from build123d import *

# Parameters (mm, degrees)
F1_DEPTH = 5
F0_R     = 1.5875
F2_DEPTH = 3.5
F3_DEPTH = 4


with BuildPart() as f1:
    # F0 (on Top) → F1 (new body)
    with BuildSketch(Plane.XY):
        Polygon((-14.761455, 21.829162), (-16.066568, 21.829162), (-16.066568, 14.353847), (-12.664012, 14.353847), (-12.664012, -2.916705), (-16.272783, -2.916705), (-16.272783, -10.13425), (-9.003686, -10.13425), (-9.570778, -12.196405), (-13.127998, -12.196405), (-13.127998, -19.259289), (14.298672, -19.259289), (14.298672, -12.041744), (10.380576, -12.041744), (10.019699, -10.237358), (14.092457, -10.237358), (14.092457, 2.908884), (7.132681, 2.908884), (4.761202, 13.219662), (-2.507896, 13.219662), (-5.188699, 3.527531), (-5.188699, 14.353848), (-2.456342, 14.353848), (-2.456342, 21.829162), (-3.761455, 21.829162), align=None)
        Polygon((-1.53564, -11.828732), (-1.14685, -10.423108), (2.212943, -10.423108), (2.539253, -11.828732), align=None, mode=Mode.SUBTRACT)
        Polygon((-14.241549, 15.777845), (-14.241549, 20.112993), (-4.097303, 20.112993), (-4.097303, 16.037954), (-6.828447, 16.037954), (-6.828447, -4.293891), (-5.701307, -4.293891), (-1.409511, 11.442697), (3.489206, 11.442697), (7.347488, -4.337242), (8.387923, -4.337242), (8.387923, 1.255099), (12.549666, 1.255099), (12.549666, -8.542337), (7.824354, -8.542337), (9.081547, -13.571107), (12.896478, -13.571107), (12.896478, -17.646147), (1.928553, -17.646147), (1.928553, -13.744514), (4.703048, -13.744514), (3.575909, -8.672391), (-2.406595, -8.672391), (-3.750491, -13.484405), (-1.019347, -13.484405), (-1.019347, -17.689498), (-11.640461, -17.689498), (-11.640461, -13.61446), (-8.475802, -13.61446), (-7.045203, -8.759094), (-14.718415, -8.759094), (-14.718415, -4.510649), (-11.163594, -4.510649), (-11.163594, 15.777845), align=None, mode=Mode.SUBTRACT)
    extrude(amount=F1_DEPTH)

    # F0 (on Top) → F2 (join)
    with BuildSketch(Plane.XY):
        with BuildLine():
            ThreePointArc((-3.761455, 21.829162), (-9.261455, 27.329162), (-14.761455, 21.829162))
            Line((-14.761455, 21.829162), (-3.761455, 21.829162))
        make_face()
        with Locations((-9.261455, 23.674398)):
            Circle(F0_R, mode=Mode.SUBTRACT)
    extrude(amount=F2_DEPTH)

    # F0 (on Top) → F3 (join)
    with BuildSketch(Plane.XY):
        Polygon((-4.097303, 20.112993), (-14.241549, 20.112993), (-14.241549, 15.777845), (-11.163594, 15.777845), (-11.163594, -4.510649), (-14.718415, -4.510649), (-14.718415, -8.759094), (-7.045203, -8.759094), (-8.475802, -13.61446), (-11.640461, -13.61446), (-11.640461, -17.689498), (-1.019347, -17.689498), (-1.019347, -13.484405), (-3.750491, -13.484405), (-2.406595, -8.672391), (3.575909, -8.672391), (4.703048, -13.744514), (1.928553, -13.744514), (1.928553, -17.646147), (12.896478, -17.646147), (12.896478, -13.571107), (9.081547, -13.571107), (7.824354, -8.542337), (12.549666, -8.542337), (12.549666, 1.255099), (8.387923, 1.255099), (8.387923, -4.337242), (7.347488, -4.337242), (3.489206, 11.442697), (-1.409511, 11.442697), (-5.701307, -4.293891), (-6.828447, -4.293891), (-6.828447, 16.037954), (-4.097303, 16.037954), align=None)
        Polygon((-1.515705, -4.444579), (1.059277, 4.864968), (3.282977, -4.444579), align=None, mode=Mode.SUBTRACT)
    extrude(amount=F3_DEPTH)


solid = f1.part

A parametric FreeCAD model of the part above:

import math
import FreeCAD as App
import Part
import Sketcher
from FreeCAD import Vector


def add_polygon(sketch, points):
    """Adds a closed chain of lines whose ends are joined by coincident constraints."""
    first, n = sketch.GeometryCount, len(points)
    for a, b in zip(points, points[1:] + points[:1]):
        sketch.addGeometry(Part.LineSegment(App.Vector(*a, 0), App.Vector(*b, 0)), False)
    for i in range(n):
        sketch.addConstraint(Sketcher.Constraint("Coincident", first + i, 2, first + (i + 1) % n, 1))

doc = App.newDocument("Part")
params = doc.addObject("Spreadsheet::Sheet", "Params")
for row, (alias, value) in enumerate([
    ("pad1_length", "5 mm"),
    ("sketch2_radius", "5.5 mm"),
    ("pad2_length", "3.5 mm"),
    ("pad3_length", "4 mm"),
], start=1):
    params.set(f"A{row}", alias)
    params.set(f"B{row}", "=" + value)
    params.setAlias(f"B{row}", alias)

body = doc.addObject("PartDesign::Body", "Body")

sketch1 = doc.addObject("Sketcher::SketchObject", "Sketch")
body.addObject(sketch1)
sketch1.AttachmentSupport = (doc.XY_Plane, [""])
sketch1.MapMode = "FlatFace"
add_polygon(sketch1, [(-16.066568, 21.829162), (-16.066568, 14.353847), (-12.664012, 14.353847), (-12.664012, -2.916705), (-16.272783, -2.916705), (-16.272783, -10.13425), (-9.003686, -10.13425), (-9.570778, -12.196405), (-13.127998, -12.196405), (-13.127998, -19.259289), (14.298672, -19.259289), (14.298672, -12.041744), (10.380576, -12.041744), (10.019699, -10.237358), (14.092457, -10.237358), (14.092457, 2.908884), (7.132681, 2.908884), (4.761202, 13.219662), (-2.507896, 13.219662), (-5.188699, 3.527531), (-5.188699, 14.353848), (-2.456342, 14.353848), (-2.456342, 21.829162)])
add_polygon(sketch1, [(2.539253, -11.828732), (-1.53564, -11.828732), (-1.14685, -10.423108), (2.212943, -10.423108)])
add_polygon(sketch1, [(-11.163594, 15.777845), (-14.241549, 15.777845), (-14.241549, 20.112993), (-4.097303, 20.112993), (-4.097303, 16.037954), (-6.828447, 16.037954), (-6.828447, -4.293891), (-5.701307, -4.293891), (-1.409511, 11.442697), (3.489206, 11.442697), (7.347488, -4.337242), (8.387923, -4.337242), (8.387923, 1.255099), (12.549666, 1.255099), (12.549666, -8.542337), (7.824354, -8.542337), (9.081547, -13.571107), (12.896478, -13.571107), (12.896478, -17.646147), (1.928553, -17.646147), (1.928553, -13.744514), (4.703048, -13.744514), (3.575909, -8.672391), (-2.406595, -8.672391), (-3.750491, -13.484405), (-1.019347, -13.484405), (-1.019347, -17.689498), (-11.640461, -17.689498), (-11.640461, -13.61446), (-8.475802, -13.61446), (-7.045203, -8.759094), (-14.718415, -8.759094), (-14.718415, -4.510649), (-11.163594, -4.510649)])
sketch1.addConstraint(Sketcher.Constraint("Vertical", 0))
sketch1.addConstraint(Sketcher.Constraint("Horizontal", 1))
sketch1.addConstraint(Sketcher.Constraint("Vertical", 2))
sketch1.addConstraint(Sketcher.Constraint("Horizontal", 3))
sketch1.addConstraint(Sketcher.Constraint("Vertical", 4))
sketch1.addConstraint(Sketcher.Constraint("Horizontal", 5))
sketch1.addConstraint(Sketcher.Constraint("Horizontal", 7))
sketch1.addConstraint(Sketcher.Constraint("Vertical", 8))
sketch1.addConstraint(Sketcher.Constraint("Horizontal", 9))
sketch1.addConstraint(Sketcher.Constraint("Vertical", 10))
sketch1.addConstraint(Sketcher.Constraint("Horizontal", 11))
sketch1.addConstraint(Sketcher.Constraint("Horizontal", 13))
sketch1.addConstraint(Sketcher.Constraint("Vertical", 14))
sketch1.addConstraint(Sketcher.Constraint("Horizontal", 15))
sketch1.addConstraint(Sketcher.Constraint("Horizontal", 17))
sketch1.addConstraint(Sketcher.Constraint("Vertical", 19))
sketch1.addConstraint(Sketcher.Constraint("Horizontal", 20))
sketch1.addConstraint(Sketcher.Constraint("Vertical", 21))
sketch1.addConstraint(Sketcher.Constraint("Horizontal", 22))
sketch1.addConstraint(Sketcher.Constraint("Horizontal", 23))
sketch1.addConstraint(Sketcher.Constraint("Horizontal", 25))
sketch1.addConstraint(Sketcher.Constraint("Horizontal", 27))
sketch1.addConstraint(Sketcher.Constraint("Vertical", 28))
sketch1.addConstraint(Sketcher.Constraint("Horizontal", 29))
sketch1.addConstraint(Sketcher.Constraint("Vertical", 30))
sketch1.addConstraint(Sketcher.Constraint("Horizontal", 31))
sketch1.addConstraint(Sketcher.Constraint("Vertical", 32))
sketch1.addConstraint(Sketcher.Constraint("Horizontal", 33))
sketch1.addConstraint(Sketcher.Constraint("Horizontal", 35))
sketch1.addConstraint(Sketcher.Constraint("Horizontal", 37))
sketch1.addConstraint(Sketcher.Constraint("Vertical", 38))
sketch1.addConstraint(Sketcher.Constraint("Horizontal", 39))
sketch1.addConstraint(Sketcher.Constraint("Vertical", 40))
sketch1.addConstraint(Sketcher.Constraint("Horizontal", 41))
sketch1.addConstraint(Sketcher.Constraint("Horizontal", 43))
sketch1.addConstraint(Sketcher.Constraint("Vertical", 44))
sketch1.addConstraint(Sketcher.Constraint("Horizontal", 45))
sketch1.addConstraint(Sketcher.Constraint("Vertical", 46))
sketch1.addConstraint(Sketcher.Constraint("Horizontal", 47))
sketch1.addConstraint(Sketcher.Constraint("Horizontal", 49))
sketch1.addConstraint(Sketcher.Constraint("Horizontal", 51))
sketch1.addConstraint(Sketcher.Constraint("Vertical", 52))
sketch1.addConstraint(Sketcher.Constraint("Horizontal", 53))
sketch1.addConstraint(Sketcher.Constraint("Vertical", 54))
sketch1.addConstraint(Sketcher.Constraint("Horizontal", 55))
sketch1.addConstraint(Sketcher.Constraint("Horizontal", 57))
sketch1.addConstraint(Sketcher.Constraint("Vertical", 58))
sketch1.addConstraint(Sketcher.Constraint("Horizontal", 59))
sketch1.addConstraint(Sketcher.Constraint("Vertical", 60))
sketch1.addConstraint(Sketcher.Constraint("DistanceX", 3, 2, 3, 1, 3.608771))
sketch1.addConstraint(Sketcher.Constraint("DistanceX", 7, 2, 7, 1, 3.55722))
sketch1.addConstraint(Sketcher.Constraint("DistanceX", 9, 1, 9, 2, 27.42667))
sketch1.addConstraint(Sketcher.Constraint("DistanceX", 13, 1, 13, 2, 4.072758))
sketch1.addConstraint(Sketcher.Constraint("DistanceX", 33, 1, 33, 2, 1.12714))
sketch1.addConstraint(Sketcher.Constraint("DistanceX", 43, 1, 43, 2, 3.814931))
sketch1.addConstraint(Sketcher.Constraint("DistanceX", 55, 1, 55, 2, 3.164659))
sketch1.addConstraint(Sketcher.Constraint("DistanceX", 59, 1, 59, 2, 3.554821))
sketch1.addConstraint(Sketcher.Constraint("DistanceY", 2, 2, 2, 1, 17.270552))
sketch1.addConstraint(Sketcher.Constraint("DistanceY", 28, 1, 28, 2, 4.335148))
sketch1.addConstraint(Sketcher.Constraint("DistanceY", 30, 2, 30, 1, 4.075039))
sketch1.addConstraint(Sketcher.Constraint("DistanceY", 38, 1, 38, 2, 5.592341))
sketch1.addConstraint(Sketcher.Constraint("DistanceY", 44, 2, 44, 1, 4.07504))
sketch1.addConstraint(Sketcher.Constraint("DistanceY", 54, 1, 54, 2, 4.075038))
sketch1.addConstraint(Sketcher.Constraint("DistanceX", -1, 1, 12, 2, 10.019699))
sketch1.addConstraint(Sketcher.Constraint("DistanceX", 18, 2, -1, 1, 5.188699))
sketch1.addConstraint(Sketcher.Constraint("DistanceY", -1, 1, 38, 2, 1.255099))
sketch1.addConstraint(Sketcher.Constraint("DistanceY", 52, 2, -1, 1, 17.689498))
sketch1.addConstraint(Sketcher.Constraint("Distance", 6, 2.138709))
sketch1.addConstraint(Sketcher.Constraint("Distance", 12, 1.84012))
sketch1.addConstraint(Sketcher.Constraint("Distance", 18, 10.056048))
sketch1.addConstraint(Sketcher.Constraint("Distance", 36, 16.244778))
sketch1.addConstraint(Sketcher.Constraint("Distance", 48, 5.195852))
sketch1.addConstraint(Sketcher.Constraint("Distance", 56, 5.061738))
sketch1.addConstraint(Sketcher.Constraint("DistanceX", 1, 1, 1, 2, 3.402556))
sketch1.addConstraint(Sketcher.Constraint("DistanceX", 5, 1, 5, 2, 7.269097))
sketch1.addConstraint(Sketcher.Constraint("DistanceX", 11, 2, 11, 1, 3.918096))
sketch1.addConstraint(Sketcher.Constraint("DistanceX", 15, 2, 15, 1, 6.959776))
sketch1.addConstraint(Sketcher.Constraint("DistanceX", 17, 2, 17, 1, 7.269098))
sketch1.addConstraint(Sketcher.Constraint("DistanceX", 20, 1, 20, 2, 2.732357))
sketch1.addConstraint(Sketcher.Constraint("DistanceX", 22, 2, 22, 1, 13.610226))
sketch1.addConstraint(Sketcher.Constraint("DistanceX", 23, 2, 23, 1, 4.074893))
sketch1.addConstraint(Sketcher.Constraint("DistanceX", 25, 1, 25, 2, 3.359793))
sketch1.addConstraint(Sketcher.Constraint("DistanceX", 27, 2, 27, 1, 3.077955))
sketch1.addConstraint(Sketcher.Constraint("DistanceX", 29, 1, 29, 2, 10.144246))
sketch1.addConstraint(Sketcher.Constraint("DistanceX", 31, 2, 31, 1, 2.731144))
sketch1.addConstraint(Sketcher.Constraint("DistanceX", 35, 1, 35, 2, 4.898717))
sketch1.addConstraint(Sketcher.Constraint("DistanceX", 37, 1, 37, 2, 1.040435))
sketch1.addConstraint(Sketcher.Constraint("DistanceX", 39, 1, 39, 2, 4.161743))
sketch1.addConstraint(Sketcher.Constraint("DistanceX", 41, 2, 41, 1, 4.725312))
sketch1.addConstraint(Sketcher.Constraint("DistanceX", 45, 2, 45, 1, 10.967925))
sketch1.addConstraint(Sketcher.Constraint("DistanceX", 47, 1, 47, 2, 2.774495))
sketch1.addConstraint(Sketcher.Constraint("DistanceX", 49, 2, 49, 1, 5.982504))
sketch1.addConstraint(Sketcher.Constraint("DistanceX", 51, 1, 51, 2, 2.731144))
sketch1.addConstraint(Sketcher.Constraint("DistanceX", 53, 2, 53, 1, 10.621114))
sketch1.addConstraint(Sketcher.Constraint("DistanceX", 57, 2, 57, 1, 7.673212))
sketch1.addConstraint(Sketcher.Constraint("DistanceY", 0, 2, 0, 1, 7.475315))
sketch1.addConstraint(Sketcher.Constraint("DistanceY", 4, 2, 4, 1, 7.217545))
sketch1.addConstraint(Sketcher.Constraint("DistanceY", 8, 2, 8, 1, 7.062884))
sketch1.addConstraint(Sketcher.Constraint("DistanceY", 10, 1, 10, 2, 7.217545))
sketch1.addConstraint(Sketcher.Constraint("DistanceY", 14, 1, 14, 2, 13.146242))
sketch1.addConstraint(Sketcher.Constraint("DistanceY", 19, 1, 19, 2, 10.826317))
sketch1.addConstraint(Sketcher.Constraint("DistanceY", 21, 1, 21, 2, 7.475314))
sketch1.addConstraint(Sketcher.Constraint("DistanceY", 32, 2, 32, 1, 20.331845))
sketch1.addConstraint(Sketcher.Constraint("DistanceY", 40, 2, 40, 1, 9.797436))
sketch1.addConstraint(Sketcher.Constraint("DistanceY", 46, 1, 46, 2, 3.901633))
sketch1.addConstraint(Sketcher.Constraint("DistanceY", 52, 2, 52, 1, 4.205093))
sketch1.addConstraint(Sketcher.Constraint("DistanceY", 58, 1, 58, 2, 4.248445))
sketch1.addConstraint(Sketcher.Constraint("DistanceY", 60, 1, 60, 2, 20.288494))
sketch1.addConstraint(Sketcher.Constraint("DistanceY", 4, 2, -1, 1, 10.13425))
sketch1.addConstraint(Sketcher.Constraint("DistanceX", 6, 2, -1, 1, 9.570778))
sketch1.addConstraint(Sketcher.Constraint("DistanceX", 23, 2, -1, 1, 1.53564))
sketch1.addConstraint(Sketcher.Constraint("DistanceX", 24, 2, -1, 1, 1.14685))
sketch1.addConstraint(Sketcher.Constraint("DistanceX", 27, 2, -1, 1, 14.241549))
sketch1.addConstraint(Sketcher.Constraint("DistanceY", 32, 2, -1, 1, 4.293891))
sketch1.addConstraint(Sketcher.Constraint("DistanceX", 34, 2, -1, 1, 1.409511))
sketch1.addConstraint(Sketcher.Constraint("DistanceX", -1, 1, 36, 2, 7.347488))
sketch1.addConstraint(Sketcher.Constraint("DistanceX", -1, 1, 48, 2, 3.575909))
sketch1.addConstraint(Sketcher.Constraint("DistanceY", 48, 2, -1, 1, 8.672391))
sketch1.addConstraint(Sketcher.Constraint("Distance", 16, 10.579984))
sketch1.addConstraint(Sketcher.Constraint("Distance", 24, 1.458402))
sketch1.addConstraint(Sketcher.Constraint("Distance", 42, 5.183538))
sketch1.addConstraint(Sketcher.Constraint("DistanceY", 23, 2, -1, 1, 11.828732))
pad1 = doc.addObject("PartDesign::Pad", "Pad")
body.addObject(pad1)
pad1.Profile = sketch1
pad1.setExpression("Length", "Params.pad1_length")

sketch2 = doc.addObject("Sketcher::SketchObject", "Sketch001")
body.addObject(sketch2)
sketch2.AttachmentSupport = (doc.XY_Plane, [""])
sketch2.MapMode = "FlatFace"
sketch2.addGeometry(Part.ArcOfCircle(Part.Circle(Vector(-9.3, 21.8, 0), Vector(0, 0, 1), 5.5), math.radians(0), math.radians(180)), False)
sketch2.addGeometry(Part.LineSegment(Vector(-14.8, 21.8, 0), Vector(-3.8, 21.8, 0)), False)
sketch2.addGeometry(Part.Circle(Vector(-9.3, 23.7, 0), Vector(0, 0, 1), 1.6), False)
sketch2.addConstraint(Sketcher.Constraint("Coincident", 0, 1, 1, 2))
sketch2.addConstraint(Sketcher.Constraint("Coincident", 1, 1, 0, 2))
sketch2.addConstraint(Sketcher.Constraint("Horizontal", 1))
sketch2.addConstraint(Sketcher.Constraint("Vertical", 0, 3, 2, 3))
sketch2.addConstraint(Sketcher.Constraint("Radius", 0, 5.5))
sketch2.addConstraint(Sketcher.Constraint("Diameter", 2, 3.175))
sketch2.addConstraint(Sketcher.Constraint("DistanceY", -1, 1, 2, 3, 23.674398))
sketch2.addConstraint(Sketcher.Constraint("DistanceY", -1, 1, 0, 3, 21.829162))
sketch2.addConstraint(Sketcher.Constraint("DistanceY", -1, 1, 0, 1, 21.829162))
sketch2.addConstraint(Sketcher.Constraint("DistanceX", 0, 3, -1, 1, 9.261455))
sketch2.setExpression("Constraints[4]", "Params.sketch2_radius")
pad2 = doc.addObject("PartDesign::Pad", "Pad001")
body.addObject(pad2)
pad2.Profile = sketch2
pad2.setExpression("Length", "Params.pad2_length")

sketch3 = doc.addObject("Sketcher::SketchObject", "Sketch002")
body.addObject(sketch3)
sketch3.AttachmentSupport = (doc.XY_Plane, [""])
sketch3.MapMode = "FlatFace"
add_polygon(sketch3, [(-4.1, 20.1), (-14.2, 20.1), (-14.2, 15.8), (-11.2, 15.8), (-11.2, -4.5), (-14.7, -4.5), (-14.7, -8.8), (-7, -8.8), (-8.5, -13.6), (-11.6, -13.6), (-11.6, -17.7), (-1, -17.7), (-1, -13.5), (-3.8, -13.5), (-2.4, -8.7), (3.6, -8.7), (4.7, -13.7), (1.9, -13.7), (1.9, -17.6), (12.9, -17.6), (12.9, -13.6), (9.1, -13.6), (7.8, -8.5), (12.5, -8.5), (12.5, 1.3), (8.4, 1.3), (8.4, -4.3), (7.3, -4.3), (3.5, 11.4), (-1.4, 11.4), (-5.7, -4.3), (-6.8, -4.3), (-6.8, 16), (-4.1, 16)])
add_polygon(sketch3, [(3.3, -4.4), (-1.5, -4.4), (1.1, 4.9)])
sketch3.addConstraint(Sketcher.Constraint("Horizontal", 0))
sketch3.addConstraint(Sketcher.Constraint("Vertical", 1))
sketch3.addConstraint(Sketcher.Constraint("Horizontal", 2))
sketch3.addConstraint(Sketcher.Constraint("Vertical", 3))
sketch3.addConstraint(Sketcher.Constraint("Horizontal", 4))
sketch3.addConstraint(Sketcher.Constraint("Vertical", 5))
sketch3.addConstraint(Sketcher.Constraint("Horizontal", 6))
sketch3.addConstraint(Sketcher.Constraint("Horizontal", 8))
sketch3.addConstraint(Sketcher.Constraint("Vertical", 9))
sketch3.addConstraint(Sketcher.Constraint("Horizontal", 10))
sketch3.addConstraint(Sketcher.Constraint("Vertical", 11))
sketch3.addConstraint(Sketcher.Constraint("Horizontal", 12))
sketch3.addConstraint(Sketcher.Constraint("Horizontal", 14))
sketch3.addConstraint(Sketcher.Constraint("Horizontal", 16))
sketch3.addConstraint(Sketcher.Constraint("Vertical", 17))
sketch3.addConstraint(Sketcher.Constraint("Horizontal", 18))
sketch3.addConstraint(Sketcher.Constraint("Vertical", 19))
sketch3.addConstraint(Sketcher.Constraint("Horizontal", 20))
sketch3.addConstraint(Sketcher.Constraint("Horizontal", 22))
sketch3.addConstraint(Sketcher.Constraint("Vertical", 23))
sketch3.addConstraint(Sketcher.Constraint("Horizontal", 24))
sketch3.addConstraint(Sketcher.Constraint("Vertical", 25))
sketch3.addConstraint(Sketcher.Constraint("Horizontal", 26))
sketch3.addConstraint(Sketcher.Constraint("Horizontal", 28))
sketch3.addConstraint(Sketcher.Constraint("Horizontal", 30))
sketch3.addConstraint(Sketcher.Constraint("Vertical", 31))
sketch3.addConstraint(Sketcher.Constraint("Horizontal", 32))
sketch3.addConstraint(Sketcher.Constraint("Vertical", 33))
sketch3.addConstraint(Sketcher.Constraint("Horizontal", 34))
sketch3.addConstraint(Sketcher.Constraint("Equal", 12, 32))
sketch3.addConstraint(Sketcher.Constraint("Equal", 9, 19))
sketch3.addConstraint(Sketcher.Constraint("Equal", 19, 33))
sketch3.addConstraint(Sketcher.Constraint("Distance", 35, 9.659099))
sketch3.addConstraint(Sketcher.Constraint("DistanceX", 4, 2, 4, 1, 3.554821))
sketch3.addConstraint(Sketcher.Constraint("DistanceX", 8, 2, 8, 1, 3.164659))
sketch3.addConstraint(Sketcher.Constraint("DistanceX", 20, 2, 20, 1, 3.814931))
sketch3.addConstraint(Sketcher.Constraint("DistanceX", 30, 2, 30, 1, 1.12714))
sketch3.addConstraint(Sketcher.Constraint("DistanceX", 34, 2, 34, 1, 4.798682))
sketch3.addConstraint(Sketcher.Constraint("DistanceY", 1, 2, 1, 1, 4.335148))
sketch3.addConstraint(Sketcher.Constraint("DistanceY", 9, 2, 9, 1, 4.075038))
sketch3.addConstraint(Sketcher.Constraint("DistanceY", 25, 2, 25, 1, 5.592341))
sketch3.addConstraint(Sketcher.Constraint("DistanceY", 9, 2, -1, 1, 17.689498))
sketch3.addConstraint(Sketcher.Constraint("DistanceY", -1, 1, 23, 2, 1.255099))
sketch3.addConstraint(Sketcher.Constraint("DistanceX", 7, 2, 6, 2, 1.430599))
sketch3.addConstraint(Sketcher.Constraint("DistanceX", 12, 2, 14, 2, 7.3264))
sketch3.addConstraint(Sketcher.Constraint("DistanceX", 11, 2, 16, 2, 2.9479))
sketch3.addConstraint(Sketcher.Constraint("DistanceX", 15, 2, 20, 2, 4.378499))
sketch3.addConstraint(Sketcher.Constraint("DistanceX", 16, 2, 21, 2, 5.895801))
sketch3.addConstraint(Sketcher.Constraint("DistanceY", 24, 2, 27, 2, 10.187598))
sketch3.addConstraint(Sketcher.Constraint("DistanceX", 2, 2, 27, 2, 14.6528))
sketch3.addConstraint(Sketcher.Constraint("DistanceY", 13, 2, 29, 2, 4.3785))
sketch3.addConstraint(Sketcher.Constraint("DistanceX", 1, 2, 31, 2, 7.413102))
sketch3.addConstraint(Sketcher.Constraint("DistanceX", 29, 2, 34, 2, 4.185602))
sketch3.addConstraint(Sketcher.Constraint("DistanceX", 6, 2, 34, 2, 5.529498))
sketch3.addConstraint(Sketcher.Constraint("Distance", 7, 5.061738))
sketch3.addConstraint(Sketcher.Constraint("Distance", 15, 5.195852))
sketch3.addConstraint(Sketcher.Constraint("Distance", 27, 16.244778))
sketch3.addConstraint(Sketcher.Constraint("DistanceX", 0, 2, 0, 1, 10.144246))
sketch3.addConstraint(Sketcher.Constraint("DistanceX", 2, 1, 2, 2, 3.077955))
sketch3.addConstraint(Sketcher.Constraint("DistanceX", 10, 1, 10, 2, 10.621114))
sketch3.addConstraint(Sketcher.Constraint("DistanceX", 14, 1, 14, 2, 5.982504))
sketch3.addConstraint(Sketcher.Constraint("DistanceX", 16, 2, 16, 1, 2.774495))
sketch3.addConstraint(Sketcher.Constraint("DistanceX", 22, 1, 22, 2, 4.725312))
sketch3.addConstraint(Sketcher.Constraint("DistanceX", 24, 2, 24, 1, 4.161743))
sketch3.addConstraint(Sketcher.Constraint("DistanceX", 28, 2, 28, 1, 4.898717))
sketch3.addConstraint(Sketcher.Constraint("DistanceY", 3, 2, 3, 1, 20.288494))
sketch3.addConstraint(Sketcher.Constraint("DistanceY", 5, 2, 5, 1, 4.248445))
sketch3.addConstraint(Sketcher.Constraint("DistanceY", 11, 1, 11, 2, 4.205093))
sketch3.addConstraint(Sketcher.Constraint("DistanceY", 17, 2, 17, 1, 3.901633))
sketch3.addConstraint(Sketcher.Constraint("DistanceY", 23, 1, 23, 2, 9.797436))
sketch3.addConstraint(Sketcher.Constraint("DistanceY", 31, 1, 31, 2, 20.331845))
sketch3.addConstraint(Sketcher.Constraint("DistanceX", 0, 2, -1, 1, 14.241549))
sketch3.addConstraint(Sketcher.Constraint("DistanceY", 34, 2, -1, 1, 4.444579))
sketch3.addConstraint(Sketcher.Constraint("DistanceY", -1, 1, 35, 2, 4.864968))
pad3 = doc.addObject("PartDesign::Pad", "Pad002")
body.addObject(pad3)
pad3.Profile = sketch3
pad3.setExpression("Length", "Params.pad3_length")

doc.recompute()
